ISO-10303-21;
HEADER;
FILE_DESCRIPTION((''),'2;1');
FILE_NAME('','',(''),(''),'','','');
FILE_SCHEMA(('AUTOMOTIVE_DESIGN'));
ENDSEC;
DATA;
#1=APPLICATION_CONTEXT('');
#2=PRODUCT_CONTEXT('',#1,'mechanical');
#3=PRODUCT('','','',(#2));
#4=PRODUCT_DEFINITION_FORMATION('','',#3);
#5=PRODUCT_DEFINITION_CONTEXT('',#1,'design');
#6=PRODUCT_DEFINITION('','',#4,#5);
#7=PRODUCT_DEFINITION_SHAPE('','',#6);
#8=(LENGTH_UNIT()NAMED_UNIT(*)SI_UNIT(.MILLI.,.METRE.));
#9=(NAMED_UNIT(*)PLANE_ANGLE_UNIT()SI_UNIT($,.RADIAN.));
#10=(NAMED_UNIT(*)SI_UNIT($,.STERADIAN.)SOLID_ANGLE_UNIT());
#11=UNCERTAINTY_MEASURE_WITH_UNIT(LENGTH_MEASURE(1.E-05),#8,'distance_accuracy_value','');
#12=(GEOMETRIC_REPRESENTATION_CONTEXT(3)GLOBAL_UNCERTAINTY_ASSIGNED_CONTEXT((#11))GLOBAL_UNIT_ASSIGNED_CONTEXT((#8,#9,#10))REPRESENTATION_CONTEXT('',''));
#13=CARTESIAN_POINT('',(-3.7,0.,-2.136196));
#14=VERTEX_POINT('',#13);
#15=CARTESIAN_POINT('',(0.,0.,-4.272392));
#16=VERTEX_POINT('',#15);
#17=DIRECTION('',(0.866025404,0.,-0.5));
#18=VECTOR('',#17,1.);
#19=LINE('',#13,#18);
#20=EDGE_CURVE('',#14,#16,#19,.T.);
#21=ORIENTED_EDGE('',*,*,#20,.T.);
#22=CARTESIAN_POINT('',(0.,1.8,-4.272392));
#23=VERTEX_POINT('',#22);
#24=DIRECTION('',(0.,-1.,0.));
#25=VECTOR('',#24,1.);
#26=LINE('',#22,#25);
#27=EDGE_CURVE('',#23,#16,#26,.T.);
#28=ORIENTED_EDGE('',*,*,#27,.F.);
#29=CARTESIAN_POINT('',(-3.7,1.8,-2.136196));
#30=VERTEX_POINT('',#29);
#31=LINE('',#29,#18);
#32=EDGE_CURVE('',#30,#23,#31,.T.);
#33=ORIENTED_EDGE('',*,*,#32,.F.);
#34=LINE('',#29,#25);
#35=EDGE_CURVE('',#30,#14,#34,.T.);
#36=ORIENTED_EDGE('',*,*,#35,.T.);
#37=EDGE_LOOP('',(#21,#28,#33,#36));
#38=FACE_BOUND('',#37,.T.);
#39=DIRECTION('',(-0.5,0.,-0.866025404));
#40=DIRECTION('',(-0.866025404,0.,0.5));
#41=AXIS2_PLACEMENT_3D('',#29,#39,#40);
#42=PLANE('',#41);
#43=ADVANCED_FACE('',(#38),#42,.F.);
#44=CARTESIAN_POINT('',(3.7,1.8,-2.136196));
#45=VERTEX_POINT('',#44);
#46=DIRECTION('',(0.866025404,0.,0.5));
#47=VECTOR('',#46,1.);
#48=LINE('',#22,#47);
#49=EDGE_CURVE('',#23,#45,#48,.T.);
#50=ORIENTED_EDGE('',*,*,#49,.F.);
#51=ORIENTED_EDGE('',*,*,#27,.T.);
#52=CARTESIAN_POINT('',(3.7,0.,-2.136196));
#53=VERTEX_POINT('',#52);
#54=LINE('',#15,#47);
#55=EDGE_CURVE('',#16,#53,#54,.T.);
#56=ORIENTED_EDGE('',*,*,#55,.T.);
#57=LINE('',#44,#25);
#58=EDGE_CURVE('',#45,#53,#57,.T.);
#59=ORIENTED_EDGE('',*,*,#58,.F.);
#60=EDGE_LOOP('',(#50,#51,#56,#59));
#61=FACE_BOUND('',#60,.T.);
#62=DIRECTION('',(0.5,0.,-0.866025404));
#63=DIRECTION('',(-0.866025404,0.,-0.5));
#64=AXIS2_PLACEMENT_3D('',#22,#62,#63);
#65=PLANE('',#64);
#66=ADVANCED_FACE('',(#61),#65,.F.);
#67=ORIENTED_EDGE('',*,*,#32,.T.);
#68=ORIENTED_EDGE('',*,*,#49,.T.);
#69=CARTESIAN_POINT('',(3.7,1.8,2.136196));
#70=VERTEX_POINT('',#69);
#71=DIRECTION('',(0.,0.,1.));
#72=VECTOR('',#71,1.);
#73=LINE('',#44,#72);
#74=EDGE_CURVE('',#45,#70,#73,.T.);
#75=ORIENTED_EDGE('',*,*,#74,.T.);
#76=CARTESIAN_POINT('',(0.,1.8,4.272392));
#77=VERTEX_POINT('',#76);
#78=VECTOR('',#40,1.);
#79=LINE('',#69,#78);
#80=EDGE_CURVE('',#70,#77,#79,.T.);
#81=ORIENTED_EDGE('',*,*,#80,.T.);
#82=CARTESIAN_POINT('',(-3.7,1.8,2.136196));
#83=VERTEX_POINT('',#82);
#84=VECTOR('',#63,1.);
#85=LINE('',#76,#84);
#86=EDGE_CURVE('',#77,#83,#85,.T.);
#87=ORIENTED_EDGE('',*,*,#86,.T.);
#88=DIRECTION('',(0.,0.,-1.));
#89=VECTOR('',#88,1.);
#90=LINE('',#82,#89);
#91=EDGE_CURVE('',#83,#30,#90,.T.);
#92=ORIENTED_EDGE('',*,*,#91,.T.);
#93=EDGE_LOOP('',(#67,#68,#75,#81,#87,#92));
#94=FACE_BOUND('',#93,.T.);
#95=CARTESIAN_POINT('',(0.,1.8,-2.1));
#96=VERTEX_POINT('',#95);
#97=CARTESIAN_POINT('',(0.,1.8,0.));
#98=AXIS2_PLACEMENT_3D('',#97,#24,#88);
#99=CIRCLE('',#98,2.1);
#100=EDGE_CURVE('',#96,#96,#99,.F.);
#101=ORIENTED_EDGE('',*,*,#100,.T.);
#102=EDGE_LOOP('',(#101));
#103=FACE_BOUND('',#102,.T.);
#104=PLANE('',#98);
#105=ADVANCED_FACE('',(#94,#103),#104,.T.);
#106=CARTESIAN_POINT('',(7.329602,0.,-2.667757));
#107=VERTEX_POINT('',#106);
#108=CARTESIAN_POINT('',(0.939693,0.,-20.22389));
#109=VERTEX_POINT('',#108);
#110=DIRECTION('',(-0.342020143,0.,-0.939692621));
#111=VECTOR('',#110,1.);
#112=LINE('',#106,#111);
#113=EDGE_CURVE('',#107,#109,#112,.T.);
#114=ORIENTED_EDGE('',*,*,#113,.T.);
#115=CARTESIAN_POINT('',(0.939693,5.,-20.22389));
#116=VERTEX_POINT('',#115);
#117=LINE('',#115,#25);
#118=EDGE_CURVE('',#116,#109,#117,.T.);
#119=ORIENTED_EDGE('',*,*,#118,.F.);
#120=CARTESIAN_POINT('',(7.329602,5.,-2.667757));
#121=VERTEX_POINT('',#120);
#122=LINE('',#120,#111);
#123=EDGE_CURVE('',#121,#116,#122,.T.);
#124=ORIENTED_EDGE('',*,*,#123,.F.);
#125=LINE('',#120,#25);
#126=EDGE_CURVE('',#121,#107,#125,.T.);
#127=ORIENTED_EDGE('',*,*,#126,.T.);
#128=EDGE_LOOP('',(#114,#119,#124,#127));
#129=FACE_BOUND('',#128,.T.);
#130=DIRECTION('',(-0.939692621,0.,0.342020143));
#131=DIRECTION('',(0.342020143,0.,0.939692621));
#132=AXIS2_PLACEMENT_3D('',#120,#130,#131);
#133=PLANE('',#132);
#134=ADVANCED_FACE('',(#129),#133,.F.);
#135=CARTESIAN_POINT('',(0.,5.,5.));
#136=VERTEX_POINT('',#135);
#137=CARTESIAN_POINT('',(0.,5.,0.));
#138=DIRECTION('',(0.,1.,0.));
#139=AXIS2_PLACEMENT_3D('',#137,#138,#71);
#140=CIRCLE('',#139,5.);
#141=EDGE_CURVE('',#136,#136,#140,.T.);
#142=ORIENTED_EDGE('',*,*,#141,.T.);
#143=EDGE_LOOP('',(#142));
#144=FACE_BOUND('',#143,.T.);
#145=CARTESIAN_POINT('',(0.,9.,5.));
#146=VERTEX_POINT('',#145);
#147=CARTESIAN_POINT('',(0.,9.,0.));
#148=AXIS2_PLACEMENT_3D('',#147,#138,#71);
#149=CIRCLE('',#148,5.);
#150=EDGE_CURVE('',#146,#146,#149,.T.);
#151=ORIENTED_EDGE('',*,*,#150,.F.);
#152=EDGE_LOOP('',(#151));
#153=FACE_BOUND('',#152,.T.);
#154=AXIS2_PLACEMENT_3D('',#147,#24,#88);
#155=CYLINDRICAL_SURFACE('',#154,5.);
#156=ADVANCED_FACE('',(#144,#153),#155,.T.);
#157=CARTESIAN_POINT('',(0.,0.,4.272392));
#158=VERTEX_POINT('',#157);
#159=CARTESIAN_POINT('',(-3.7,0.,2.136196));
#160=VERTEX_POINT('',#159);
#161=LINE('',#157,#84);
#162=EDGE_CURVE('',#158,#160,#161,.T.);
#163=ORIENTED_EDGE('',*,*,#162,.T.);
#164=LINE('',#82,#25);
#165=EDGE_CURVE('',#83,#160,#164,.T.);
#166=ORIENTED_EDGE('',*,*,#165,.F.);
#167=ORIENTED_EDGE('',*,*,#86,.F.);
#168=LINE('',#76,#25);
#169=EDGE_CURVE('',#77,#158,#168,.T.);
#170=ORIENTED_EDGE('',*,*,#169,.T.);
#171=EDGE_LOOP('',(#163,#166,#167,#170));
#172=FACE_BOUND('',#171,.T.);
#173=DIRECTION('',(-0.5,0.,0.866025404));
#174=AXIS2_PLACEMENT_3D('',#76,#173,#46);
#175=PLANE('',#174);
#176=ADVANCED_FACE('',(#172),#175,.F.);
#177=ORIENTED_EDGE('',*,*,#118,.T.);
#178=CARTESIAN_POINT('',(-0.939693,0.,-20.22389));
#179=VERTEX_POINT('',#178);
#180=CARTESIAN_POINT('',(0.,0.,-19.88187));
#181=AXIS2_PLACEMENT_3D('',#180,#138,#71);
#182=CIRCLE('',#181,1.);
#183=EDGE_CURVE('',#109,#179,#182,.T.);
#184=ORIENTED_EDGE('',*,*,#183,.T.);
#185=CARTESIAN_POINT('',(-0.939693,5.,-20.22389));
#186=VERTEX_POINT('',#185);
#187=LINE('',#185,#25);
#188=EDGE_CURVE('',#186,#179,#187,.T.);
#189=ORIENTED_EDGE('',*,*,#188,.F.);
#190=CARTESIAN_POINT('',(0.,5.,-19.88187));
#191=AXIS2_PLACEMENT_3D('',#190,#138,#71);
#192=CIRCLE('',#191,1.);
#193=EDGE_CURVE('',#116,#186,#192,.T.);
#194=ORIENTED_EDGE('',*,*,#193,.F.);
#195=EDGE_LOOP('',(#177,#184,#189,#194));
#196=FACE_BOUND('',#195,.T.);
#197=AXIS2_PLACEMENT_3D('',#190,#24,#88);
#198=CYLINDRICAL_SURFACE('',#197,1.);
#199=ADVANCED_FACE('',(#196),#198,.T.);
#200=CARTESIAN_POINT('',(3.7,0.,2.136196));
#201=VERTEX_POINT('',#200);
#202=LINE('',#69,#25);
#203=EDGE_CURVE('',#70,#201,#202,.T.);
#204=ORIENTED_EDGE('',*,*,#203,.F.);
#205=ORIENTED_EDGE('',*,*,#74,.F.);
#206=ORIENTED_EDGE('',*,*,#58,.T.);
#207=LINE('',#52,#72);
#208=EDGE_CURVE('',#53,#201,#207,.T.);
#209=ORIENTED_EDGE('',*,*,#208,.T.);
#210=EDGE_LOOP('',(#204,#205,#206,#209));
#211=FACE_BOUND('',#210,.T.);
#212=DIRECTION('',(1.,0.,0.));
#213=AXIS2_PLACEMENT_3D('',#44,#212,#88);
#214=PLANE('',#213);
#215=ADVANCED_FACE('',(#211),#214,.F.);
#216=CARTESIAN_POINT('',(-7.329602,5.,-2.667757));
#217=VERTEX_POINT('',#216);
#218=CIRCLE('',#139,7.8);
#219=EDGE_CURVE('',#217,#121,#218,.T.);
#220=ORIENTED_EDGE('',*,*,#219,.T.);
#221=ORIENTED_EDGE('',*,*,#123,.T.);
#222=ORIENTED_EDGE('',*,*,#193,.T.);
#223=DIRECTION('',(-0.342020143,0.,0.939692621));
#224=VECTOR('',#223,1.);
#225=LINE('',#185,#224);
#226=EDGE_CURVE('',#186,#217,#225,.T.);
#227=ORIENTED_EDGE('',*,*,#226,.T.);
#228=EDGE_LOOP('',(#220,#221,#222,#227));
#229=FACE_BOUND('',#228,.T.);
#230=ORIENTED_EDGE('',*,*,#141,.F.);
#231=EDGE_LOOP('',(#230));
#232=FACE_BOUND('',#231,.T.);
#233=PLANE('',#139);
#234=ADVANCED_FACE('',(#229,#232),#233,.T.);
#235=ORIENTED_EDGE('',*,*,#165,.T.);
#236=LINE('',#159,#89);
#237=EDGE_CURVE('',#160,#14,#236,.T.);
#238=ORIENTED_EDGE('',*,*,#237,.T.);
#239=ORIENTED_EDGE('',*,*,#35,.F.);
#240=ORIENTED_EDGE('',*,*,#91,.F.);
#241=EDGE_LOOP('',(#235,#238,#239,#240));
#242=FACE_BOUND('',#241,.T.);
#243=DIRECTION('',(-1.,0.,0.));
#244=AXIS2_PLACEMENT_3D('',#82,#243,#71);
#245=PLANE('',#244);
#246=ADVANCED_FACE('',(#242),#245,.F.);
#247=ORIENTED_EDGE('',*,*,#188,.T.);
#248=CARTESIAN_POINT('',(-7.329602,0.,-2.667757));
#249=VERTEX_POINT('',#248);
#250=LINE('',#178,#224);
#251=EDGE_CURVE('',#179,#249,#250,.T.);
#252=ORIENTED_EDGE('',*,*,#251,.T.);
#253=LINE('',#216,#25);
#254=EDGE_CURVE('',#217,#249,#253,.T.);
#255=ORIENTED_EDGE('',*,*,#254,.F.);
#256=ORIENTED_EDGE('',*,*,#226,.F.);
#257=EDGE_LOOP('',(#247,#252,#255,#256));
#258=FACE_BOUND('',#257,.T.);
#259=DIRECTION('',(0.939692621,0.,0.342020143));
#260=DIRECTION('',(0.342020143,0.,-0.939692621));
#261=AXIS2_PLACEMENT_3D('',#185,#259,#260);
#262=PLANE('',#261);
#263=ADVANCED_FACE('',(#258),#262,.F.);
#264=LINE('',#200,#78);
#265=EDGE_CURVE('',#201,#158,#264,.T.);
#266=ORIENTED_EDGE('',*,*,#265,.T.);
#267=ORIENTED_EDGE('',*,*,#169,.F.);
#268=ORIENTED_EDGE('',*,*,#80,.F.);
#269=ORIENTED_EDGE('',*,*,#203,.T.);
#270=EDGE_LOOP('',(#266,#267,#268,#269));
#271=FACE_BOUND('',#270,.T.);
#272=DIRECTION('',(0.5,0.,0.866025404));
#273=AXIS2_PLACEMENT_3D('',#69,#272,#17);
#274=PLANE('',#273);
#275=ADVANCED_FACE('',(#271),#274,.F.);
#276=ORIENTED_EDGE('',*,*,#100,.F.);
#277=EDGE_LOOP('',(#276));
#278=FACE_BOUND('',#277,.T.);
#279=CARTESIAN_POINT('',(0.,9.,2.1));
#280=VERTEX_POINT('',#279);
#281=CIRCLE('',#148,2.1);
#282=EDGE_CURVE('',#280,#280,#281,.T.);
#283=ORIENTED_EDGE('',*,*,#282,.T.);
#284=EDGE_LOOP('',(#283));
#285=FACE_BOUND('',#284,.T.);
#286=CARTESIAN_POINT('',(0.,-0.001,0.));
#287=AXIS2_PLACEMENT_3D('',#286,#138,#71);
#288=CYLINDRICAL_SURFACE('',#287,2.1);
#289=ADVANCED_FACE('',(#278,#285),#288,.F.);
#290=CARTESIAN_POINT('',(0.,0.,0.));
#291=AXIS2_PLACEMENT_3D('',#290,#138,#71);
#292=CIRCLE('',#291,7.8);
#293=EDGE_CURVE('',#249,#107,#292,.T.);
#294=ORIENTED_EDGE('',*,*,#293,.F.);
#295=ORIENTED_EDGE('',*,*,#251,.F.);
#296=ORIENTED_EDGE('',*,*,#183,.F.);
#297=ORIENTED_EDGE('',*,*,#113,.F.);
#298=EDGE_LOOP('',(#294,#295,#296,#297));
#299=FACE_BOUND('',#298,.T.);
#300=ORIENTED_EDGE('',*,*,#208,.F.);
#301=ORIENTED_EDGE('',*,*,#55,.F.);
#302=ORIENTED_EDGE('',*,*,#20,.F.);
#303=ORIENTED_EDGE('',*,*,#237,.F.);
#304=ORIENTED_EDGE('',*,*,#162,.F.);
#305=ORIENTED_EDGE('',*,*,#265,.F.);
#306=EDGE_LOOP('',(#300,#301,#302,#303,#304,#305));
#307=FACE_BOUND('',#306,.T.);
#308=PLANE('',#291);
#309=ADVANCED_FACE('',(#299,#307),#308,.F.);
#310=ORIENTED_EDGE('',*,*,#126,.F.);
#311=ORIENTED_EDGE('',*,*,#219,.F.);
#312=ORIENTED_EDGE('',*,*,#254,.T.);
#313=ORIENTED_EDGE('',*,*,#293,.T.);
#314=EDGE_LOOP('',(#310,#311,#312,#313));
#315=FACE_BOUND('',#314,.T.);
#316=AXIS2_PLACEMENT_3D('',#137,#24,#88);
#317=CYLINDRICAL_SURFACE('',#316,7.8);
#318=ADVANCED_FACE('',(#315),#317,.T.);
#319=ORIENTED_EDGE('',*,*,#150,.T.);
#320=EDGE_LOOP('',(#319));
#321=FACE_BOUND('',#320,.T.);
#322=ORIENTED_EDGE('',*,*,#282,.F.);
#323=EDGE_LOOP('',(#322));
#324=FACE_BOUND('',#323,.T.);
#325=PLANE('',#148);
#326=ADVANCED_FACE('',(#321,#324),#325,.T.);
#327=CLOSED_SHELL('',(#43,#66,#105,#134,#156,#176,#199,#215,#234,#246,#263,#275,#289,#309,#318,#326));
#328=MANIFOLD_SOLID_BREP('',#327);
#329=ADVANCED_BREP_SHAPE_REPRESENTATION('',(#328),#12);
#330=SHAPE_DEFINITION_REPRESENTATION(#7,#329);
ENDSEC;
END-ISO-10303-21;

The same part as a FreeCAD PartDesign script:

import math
import FreeCAD as App
import Part
import Sketcher
Q = App.Units.Quantity

doc = App.newDocument("Part")
body = doc.addObject("PartDesign::Body", "Body")

# Sketch on XZ plane
sketch1 = body.newObject("Sketcher::SketchObject", "Sketch")
sketch1.AttachmentSupport = (doc.getObject("XZ_Plane"), [""])
sketch1.MapMode = "FlatFace"
sketch1.addGeometry([
    Part.LineSegment(App.Vector(-0.9, -20.2, 0), App.Vector(-7.3, -2.7, 0)),
    Part.ArcOfCircle(Part.Circle(App.Vector(0, 0, 0), App.Vector(0, 0, 1), 7.8), math.radians(-20), math.radians(200)),
    Part.LineSegment(App.Vector(7.3, -2.7, 0), App.Vector(0.9, -20.2, 0)),
    Part.ArcOfCircle(Part.Circle(App.Vector(0, -19.9, 0), App.Vector(0, 0, 1), 1), math.radians(-160), math.radians(-20)),
], False)
sketch1.addConstraint([
    Sketcher.Constraint("Tangent", 0, 2, 1, 2),
    Sketcher.Constraint("Tangent", 1, 1, 2, 1),
    Sketcher.Constraint("Tangent", 2, 2, 3, 2),
    Sketcher.Constraint("Tangent", 3, 1, 0, 1),
    Sketcher.Constraint("Coincident", 1, 3, -1, 1),
    Sketcher.Constraint("PointOnObject", 3, 3, -2),
    Sketcher.Constraint("Radius", 3, 1.0),
    Sketcher.Constraint("Radius", 1, 7.8),
    Sketcher.Constraint("Angle", 0, Q("110 deg")),
])
pad1 = body.newObject("PartDesign::Pad", "Pad")
pad1.Profile = sketch1
pad1.Length = 5
pad1.Reversed = True

# Sketch on XZ plane
sketch2 = body.newObject("Sketcher::SketchObject", "Sketch001")
sketch2.AttachmentSupport = (doc.getObject("XZ_Plane"), [""])
sketch2.MapMode = "FlatFace"
sketch2.AttachmentOffset = App.Placement(App.Vector(0, 0, -5), App.Rotation())
sketch2.addGeometry(Part.Circle(App.Vector(0, 0, 0), App.Vector(0, 0, 1), 2.1), False)
sketch2.addConstraint([
    Sketcher.Constraint("Coincident", 0, 3, -1, 1),
    Sketcher.Constraint("Diameter", 0, 4.2),
])
pocket1 = body.newObject("PartDesign::Pocket", "Pocket")
pocket1.Profile = sketch2
pocket1.Type = "UpToFirst"
pocket1.Reversed = True

# Sketch on XZ plane
sketch3 = body.newObject("Sketcher::SketchObject", "Sketch002")
sketch3.AttachmentSupport = (doc.getObject("XZ_Plane"), [""])
sketch3.MapMode = "FlatFace"
sketch3.addGeometry([
    Part.LineSegment(App.Vector(0, 4.3, 0), App.Vector(-3.7, 2.1, 0)),  # 0
    Part.LineSegment(App.Vector(-3.7, 2.1, 0), App.Vector(-3.7, -2.1, 0)),  # 1
    Part.LineSegment(App.Vector(-3.7, -2.1, 0), App.Vector(0, -4.3, 0)),  # 2
    Part.LineSegment(App.Vector(0, -4.3, 0), App.Vector(3.7, -2.1, 0)),  # 3
    Part.LineSegment(App.Vector(3.7, -2.1, 0), App.Vector(3.7, 2.1, 0)),  # 4
    Part.LineSegment(App.Vector(3.7, 2.1, 0), App.Vector(0, 4.3, 0)),  # 5
], False)
sketch3.addConstraint([
    Sketcher.Constraint("Coincident", 0, 2, 1, 1),
    Sketcher.Constraint("Coincident", 1, 2, 2, 1),
    Sketcher.Constraint("Coincident", 2, 2, 3, 1),
    Sketcher.Constraint("Coincident", 3, 2, 4, 1),
    Sketcher.Constraint("Coincident", 4, 2, 5, 1),
    Sketcher.Constraint("Coincident", 5, 2, 0, 1),
    Sketcher.Constraint("Vertical", 1),
    Sketcher.Constraint("Vertical", 4),
    Sketcher.Constraint("Symmetric", 0, 2, 3, 2, -1, 1),
    Sketcher.Constraint("Symmetric", 2, 2, 5, 2, -1, 1),
    Sketcher.Constraint("PointOnObject", 2, 2, -2),
    Sketcher.Constraint("Parallel", 2, 5),
    Sketcher.Constraint("Horizontal", 1, 2, 3, 2),
    Sketcher.Constraint("Angle", 0, Q("-150 deg")),
    Sketcher.Constraint("DistanceX", 0, 2, -1, 1, 3.7),
    Sketcher.Constraint("DistanceY", 1, 2, 1, 1, 4.272392),
])
pocket2 = body.newObject("PartDesign::Pocket", "Pocket001")
pocket2.Profile = sketch3
pocket2.Length = 1.8

# Sketch on XZ plane
sketch4 = body.newObject("Sketcher::SketchObject", "Sketch003")
sketch4.AttachmentSupport = (doc.getObject("XZ_Plane"), [""])
sketch4.MapMode = "FlatFace"
sketch4.AttachmentOffset = App.Placement(App.Vector(0, 0, -5), App.Rotation())
sketch4.addGeometry([
    Part.Circle(App.Vector(0, 0, 0), App.Vector(0, 0, 1), 5),
    Part.Circle(App.Vector(0, 0, 0), App.Vector(0, 0, 1), 2.1),
], False)
sketch4.addConstraint([
    Sketcher.Constraint("Coincident", 0, 3, -1, 1),
    Sketcher.Constraint("Coincident", 1, 3, -1, 1),
    Sketcher.Constraint("Diameter", 0, 10.0),
    Sketcher.Constraint("Diameter", 1, 4.2),
])
pad2 = body.newObject("PartDesign::Pad", "Pad001")
pad2.Profile = sketch4
pad2.Length = 4
pad2.Reversed = True

doc.recompute()
